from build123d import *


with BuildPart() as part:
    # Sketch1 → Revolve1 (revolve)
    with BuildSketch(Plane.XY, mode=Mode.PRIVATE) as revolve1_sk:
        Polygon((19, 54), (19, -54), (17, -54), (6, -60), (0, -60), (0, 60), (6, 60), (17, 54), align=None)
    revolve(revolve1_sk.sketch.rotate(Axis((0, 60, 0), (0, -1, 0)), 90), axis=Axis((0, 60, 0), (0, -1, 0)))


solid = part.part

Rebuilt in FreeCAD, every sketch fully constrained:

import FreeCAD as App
import Part
import Sketcher
Q = App.Units.Quantity


def add_polygon(sketch, points):
    """Adds a closed chain of lines whose ends are joined by coincident constraints."""
    first, n = sketch.GeometryCount, len(points)
    for a, b in zip(points, points[1:] + points[:1]):
        sketch.addGeometry(Part.LineSegment(App.Vector(*a, 0), App.Vector(*b, 0)), False)
    for i in range(n):
        sketch.addConstraint(Sketcher.Constraint("Coincident", first + i, 2, first + (i + 1) % n, 1))

doc = App.newDocument("Part")
body = doc.addObject("PartDesign::Body", "Body")

# Sketch on XY plane
sketch1 = body.newObject("Sketcher::SketchObject", "Sketch")
sketch1.AttachmentSupport = (doc.getObject("XY_Plane"), [""])
sketch1.MapMode = "FlatFace"
add_polygon(sketch1, [(19, -54), (19, 54), (17, 54), (6, 60), (0, 60), (0, -60), (6, -60), (17, -54)])  # lines 0-7
sketch1.addConstraint([
    Sketcher.Constraint("Vertical", 0),
    Sketcher.Constraint("Horizontal", 1),
    Sketcher.Constraint("Horizontal", 3),
    Sketcher.Constraint("Vertical", 4),
    Sketcher.Constraint("Horizontal", 5),
    Sketcher.Constraint("Horizontal", 7),
    Sketcher.Constraint("Symmetric", 3, 2, 4, 2, -1, 1),
    Sketcher.Constraint("Symmetric", 1, 2, 6, 2, -1),
    Sketcher.Constraint("Vertical", 2, 2, 5, 2),
    Sketcher.Constraint("DistanceX", 1, 2, 1, 1, Q("2 mm")),
    Sketcher.Constraint("DistanceX", 3, 2, 3, 1, Q("6 mm")),
    Sketcher.Constraint("DistanceY", 0, 1, 0, 2, Q("108 mm")),
    Sketcher.Constraint("DistanceY", 4, 2, 4, 1, Q("120 mm")),
    Sketcher.Constraint("DistanceX", -1, 1, 0, 2, Q("19 mm")),
])
revolution = body.newObject("PartDesign::Revolution", "Revolution")
revolution.Profile = sketch1
revolution.ReferenceAxis = (sketch1, ["V_Axis"])
revolution.Angle = 360

doc.recompute()
